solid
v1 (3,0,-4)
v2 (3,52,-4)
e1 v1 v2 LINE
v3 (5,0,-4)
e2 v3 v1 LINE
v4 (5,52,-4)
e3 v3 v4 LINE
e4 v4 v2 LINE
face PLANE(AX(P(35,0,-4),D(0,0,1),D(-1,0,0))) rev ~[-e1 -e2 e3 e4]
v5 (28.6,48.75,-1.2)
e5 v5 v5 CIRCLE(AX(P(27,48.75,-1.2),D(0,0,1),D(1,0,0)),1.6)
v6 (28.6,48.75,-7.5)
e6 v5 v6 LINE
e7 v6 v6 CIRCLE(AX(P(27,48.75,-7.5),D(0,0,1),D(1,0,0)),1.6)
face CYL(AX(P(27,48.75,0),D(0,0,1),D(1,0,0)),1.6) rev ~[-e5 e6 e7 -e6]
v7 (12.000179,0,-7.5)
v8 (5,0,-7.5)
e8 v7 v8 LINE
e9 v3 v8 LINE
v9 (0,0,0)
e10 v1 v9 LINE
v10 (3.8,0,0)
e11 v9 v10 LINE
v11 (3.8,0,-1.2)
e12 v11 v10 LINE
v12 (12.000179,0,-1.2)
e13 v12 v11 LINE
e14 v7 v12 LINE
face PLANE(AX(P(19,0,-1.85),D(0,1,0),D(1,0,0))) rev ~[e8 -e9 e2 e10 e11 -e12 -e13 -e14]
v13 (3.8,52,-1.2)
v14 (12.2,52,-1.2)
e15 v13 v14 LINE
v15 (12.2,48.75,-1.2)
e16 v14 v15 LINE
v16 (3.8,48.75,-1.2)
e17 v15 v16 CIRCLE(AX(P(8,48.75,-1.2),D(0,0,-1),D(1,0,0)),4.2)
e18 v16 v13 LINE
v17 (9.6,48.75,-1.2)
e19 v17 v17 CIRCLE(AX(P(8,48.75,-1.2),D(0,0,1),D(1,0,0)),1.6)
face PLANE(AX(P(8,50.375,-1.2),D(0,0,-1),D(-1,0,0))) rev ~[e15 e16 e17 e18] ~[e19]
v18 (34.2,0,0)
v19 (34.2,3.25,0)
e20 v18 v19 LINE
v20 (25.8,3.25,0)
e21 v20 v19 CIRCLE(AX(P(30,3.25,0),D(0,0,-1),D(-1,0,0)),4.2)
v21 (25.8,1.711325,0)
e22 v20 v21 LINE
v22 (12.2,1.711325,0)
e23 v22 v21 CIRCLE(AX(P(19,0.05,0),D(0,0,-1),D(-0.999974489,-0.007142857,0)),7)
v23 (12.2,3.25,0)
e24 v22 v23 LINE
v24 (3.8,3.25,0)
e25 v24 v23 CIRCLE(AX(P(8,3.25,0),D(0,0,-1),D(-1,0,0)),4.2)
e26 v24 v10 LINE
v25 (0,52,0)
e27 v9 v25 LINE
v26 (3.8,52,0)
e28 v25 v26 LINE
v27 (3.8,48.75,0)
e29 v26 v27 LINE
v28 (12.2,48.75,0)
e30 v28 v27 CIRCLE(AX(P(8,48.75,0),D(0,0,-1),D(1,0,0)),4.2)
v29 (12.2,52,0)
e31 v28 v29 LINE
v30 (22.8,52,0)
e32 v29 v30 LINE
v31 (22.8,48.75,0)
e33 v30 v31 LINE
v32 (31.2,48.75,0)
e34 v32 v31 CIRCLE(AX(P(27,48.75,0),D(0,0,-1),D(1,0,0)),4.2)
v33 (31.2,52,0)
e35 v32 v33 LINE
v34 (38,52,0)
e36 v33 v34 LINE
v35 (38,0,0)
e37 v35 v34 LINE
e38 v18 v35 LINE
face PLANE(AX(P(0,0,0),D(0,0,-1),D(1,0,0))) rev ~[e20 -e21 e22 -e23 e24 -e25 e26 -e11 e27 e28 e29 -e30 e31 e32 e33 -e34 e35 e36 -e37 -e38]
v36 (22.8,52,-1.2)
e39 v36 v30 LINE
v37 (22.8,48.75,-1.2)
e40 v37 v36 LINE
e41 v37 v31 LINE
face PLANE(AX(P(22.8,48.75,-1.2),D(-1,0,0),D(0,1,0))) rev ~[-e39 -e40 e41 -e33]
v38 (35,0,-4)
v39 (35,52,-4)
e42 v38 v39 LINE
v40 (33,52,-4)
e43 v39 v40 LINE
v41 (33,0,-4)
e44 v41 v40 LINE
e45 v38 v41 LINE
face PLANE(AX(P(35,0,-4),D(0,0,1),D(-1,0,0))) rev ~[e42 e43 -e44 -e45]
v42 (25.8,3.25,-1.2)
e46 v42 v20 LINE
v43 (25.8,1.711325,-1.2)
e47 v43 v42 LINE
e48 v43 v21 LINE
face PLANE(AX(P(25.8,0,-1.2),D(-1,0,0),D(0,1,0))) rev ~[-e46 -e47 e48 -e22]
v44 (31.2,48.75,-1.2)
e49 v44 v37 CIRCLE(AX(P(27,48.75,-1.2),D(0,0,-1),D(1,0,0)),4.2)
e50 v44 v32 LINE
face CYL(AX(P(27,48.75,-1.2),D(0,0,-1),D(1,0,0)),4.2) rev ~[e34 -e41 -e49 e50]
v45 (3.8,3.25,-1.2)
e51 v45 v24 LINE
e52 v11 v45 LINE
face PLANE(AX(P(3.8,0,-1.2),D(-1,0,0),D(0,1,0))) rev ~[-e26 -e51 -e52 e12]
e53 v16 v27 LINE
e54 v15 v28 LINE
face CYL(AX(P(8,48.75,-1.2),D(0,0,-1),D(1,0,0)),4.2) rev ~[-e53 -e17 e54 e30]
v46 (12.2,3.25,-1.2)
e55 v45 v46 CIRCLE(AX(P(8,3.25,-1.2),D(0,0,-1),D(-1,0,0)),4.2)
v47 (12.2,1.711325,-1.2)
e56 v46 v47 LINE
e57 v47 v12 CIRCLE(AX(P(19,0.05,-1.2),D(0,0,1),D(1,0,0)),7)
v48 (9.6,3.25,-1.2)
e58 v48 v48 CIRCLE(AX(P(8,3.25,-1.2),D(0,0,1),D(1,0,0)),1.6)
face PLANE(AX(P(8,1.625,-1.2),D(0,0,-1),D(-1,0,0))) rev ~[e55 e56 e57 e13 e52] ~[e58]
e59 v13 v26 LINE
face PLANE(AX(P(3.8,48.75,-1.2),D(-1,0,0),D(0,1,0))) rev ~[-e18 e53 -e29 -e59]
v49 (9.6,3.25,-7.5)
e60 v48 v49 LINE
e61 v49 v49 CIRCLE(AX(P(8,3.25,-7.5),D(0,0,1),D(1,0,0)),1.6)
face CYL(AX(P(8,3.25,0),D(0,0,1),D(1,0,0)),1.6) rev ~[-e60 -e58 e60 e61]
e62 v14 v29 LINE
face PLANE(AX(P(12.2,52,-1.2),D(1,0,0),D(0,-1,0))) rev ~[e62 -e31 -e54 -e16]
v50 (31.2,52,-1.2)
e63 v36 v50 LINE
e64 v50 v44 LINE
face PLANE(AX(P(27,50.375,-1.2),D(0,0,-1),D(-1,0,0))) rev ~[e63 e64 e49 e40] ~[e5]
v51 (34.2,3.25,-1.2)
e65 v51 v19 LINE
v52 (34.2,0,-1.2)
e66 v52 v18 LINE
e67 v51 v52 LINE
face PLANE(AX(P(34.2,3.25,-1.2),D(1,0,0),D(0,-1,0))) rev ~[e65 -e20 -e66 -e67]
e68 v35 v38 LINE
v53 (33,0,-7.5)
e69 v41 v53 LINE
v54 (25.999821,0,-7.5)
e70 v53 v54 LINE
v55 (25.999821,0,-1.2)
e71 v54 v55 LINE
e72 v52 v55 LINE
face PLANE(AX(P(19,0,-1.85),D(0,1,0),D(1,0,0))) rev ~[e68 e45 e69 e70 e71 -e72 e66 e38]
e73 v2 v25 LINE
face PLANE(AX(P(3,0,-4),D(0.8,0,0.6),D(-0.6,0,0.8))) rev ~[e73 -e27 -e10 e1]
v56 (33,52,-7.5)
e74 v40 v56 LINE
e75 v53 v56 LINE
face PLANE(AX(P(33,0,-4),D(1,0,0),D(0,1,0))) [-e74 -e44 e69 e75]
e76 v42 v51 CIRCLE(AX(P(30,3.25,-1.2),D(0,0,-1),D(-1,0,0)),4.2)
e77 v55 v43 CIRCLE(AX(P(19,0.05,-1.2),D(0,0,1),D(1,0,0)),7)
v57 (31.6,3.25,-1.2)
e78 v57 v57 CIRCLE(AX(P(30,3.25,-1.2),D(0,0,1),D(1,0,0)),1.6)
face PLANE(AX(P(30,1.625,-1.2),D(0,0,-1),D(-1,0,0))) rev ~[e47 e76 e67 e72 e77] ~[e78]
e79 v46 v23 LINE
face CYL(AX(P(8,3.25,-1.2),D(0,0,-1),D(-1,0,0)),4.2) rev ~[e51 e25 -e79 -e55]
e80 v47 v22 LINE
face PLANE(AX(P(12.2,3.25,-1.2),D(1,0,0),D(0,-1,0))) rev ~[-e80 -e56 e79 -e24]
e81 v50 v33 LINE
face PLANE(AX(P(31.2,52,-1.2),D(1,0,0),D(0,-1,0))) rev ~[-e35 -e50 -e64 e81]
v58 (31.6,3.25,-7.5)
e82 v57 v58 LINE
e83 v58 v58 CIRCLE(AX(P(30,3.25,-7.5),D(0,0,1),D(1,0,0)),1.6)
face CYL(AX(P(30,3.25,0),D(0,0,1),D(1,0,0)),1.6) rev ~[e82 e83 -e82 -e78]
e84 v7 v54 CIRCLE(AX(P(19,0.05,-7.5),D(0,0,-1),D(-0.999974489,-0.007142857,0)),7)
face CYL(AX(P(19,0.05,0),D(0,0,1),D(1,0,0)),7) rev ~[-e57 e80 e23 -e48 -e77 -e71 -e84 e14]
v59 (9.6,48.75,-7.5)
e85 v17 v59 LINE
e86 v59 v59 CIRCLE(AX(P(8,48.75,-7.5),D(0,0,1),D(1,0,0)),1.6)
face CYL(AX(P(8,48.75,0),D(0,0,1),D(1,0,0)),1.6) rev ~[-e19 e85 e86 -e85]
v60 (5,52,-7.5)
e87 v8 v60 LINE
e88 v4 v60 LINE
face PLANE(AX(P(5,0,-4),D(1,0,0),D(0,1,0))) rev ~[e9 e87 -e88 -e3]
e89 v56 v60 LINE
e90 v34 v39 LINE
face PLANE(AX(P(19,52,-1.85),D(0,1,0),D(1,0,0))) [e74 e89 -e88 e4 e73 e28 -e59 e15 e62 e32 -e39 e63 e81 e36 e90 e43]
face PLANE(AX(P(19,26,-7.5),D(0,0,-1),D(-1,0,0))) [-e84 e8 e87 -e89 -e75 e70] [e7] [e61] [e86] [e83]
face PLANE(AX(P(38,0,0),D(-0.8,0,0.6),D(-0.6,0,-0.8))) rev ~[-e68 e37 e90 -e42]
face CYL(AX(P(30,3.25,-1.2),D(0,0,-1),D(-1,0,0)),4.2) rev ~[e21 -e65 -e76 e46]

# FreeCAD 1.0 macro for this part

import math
import FreeCAD as App
import Part
import Sketcher

doc = App.newDocument("Part")
body = doc.addObject("PartDesign::Body", "Body")

sketch1 = body.newObject("Sketcher::SketchObject", "Sketch")
sketch1.AttachmentSupport = (doc.getObject("XZ_Plane"), [""])
sketch1.MapMode = "FlatFace"
sketch1.addGeometry(Part.LineSegment(App.Vector(0, 0, 0), App.Vector(38, 0, 0)), False)
sketch1.addGeometry(Part.LineSegment(App.Vector(38, 0, 0), App.Vector(35, -4, 0)), False)
sketch1.addGeometry(Part.LineSegment(App.Vector(35, -4, 0), App.Vector(3, -4, 0)), False)
sketch1.addGeometry(Part.LineSegment(App.Vector(3, -4, 0), App.Vector(0, 0, 0)), False)
sketch1.addConstraint(Sketcher.Constraint("Coincident", 0, 2, 1, 1))
sketch1.addConstraint(Sketcher.Constraint("Coincident", 1, 2, 2, 1))
sketch1.addConstraint(Sketcher.Constraint("Coincident", 2, 2, 3, 1))
sketch1.addConstraint(Sketcher.Constraint("Coincident", 3, 2, 0, 1))
sketch1.addConstraint(Sketcher.Constraint("Horizontal", 0))
sketch1.addConstraint(Sketcher.Constraint("Horizontal", 2))
sketch1.addConstraint(Sketcher.Constraint("Coincident", 3, 2, -1, 1))
sketch1.addConstraint(Sketcher.Constraint("Equal", 1, 3))
sketch1.addConstraint(Sketcher.Constraint("DistanceX", 0, 1, 0, 2, 38.0))
sketch1.addConstraint(Sketcher.Constraint("DistanceX", 2, 2, 2, 1, 32.0))
sketch1.addConstraint(Sketcher.Constraint("Distance", 1, 5.0))
pad1 = body.newObject("PartDesign::Pad", "Pad")
pad1.Profile = sketch1
pad1.Length = 52
pad1.Reversed = True

sketch2 = body.newObject("Sketcher::SketchObject", "Sketch001")
sketch2.AttachmentSupport = (doc.getObject("XY_Plane"), [""])
sketch2.MapMode = "FlatFace"
sketch2.AttachmentOffset = App.Placement(App.Vector(0, 0, -4), App.Rotation())
sketch2.addGeometry(Part.LineSegment(App.Vector(33, 52, 0), App.Vector(33, 0, 0)), False)
sketch2.addGeometry(Part.LineSegment(App.Vector(33, 0, 0), App.Vector(5, 0, 0)), False)
sketch2.addGeometry(Part.LineSegment(App.Vector(5, 0, 0), App.Vector(5, 52, 0)), False)
sketch2.addGeometry(Part.LineSegment(App.Vector(5, 52, 0), App.Vector(33, 52, 0)), False)
sketch2.addConstraint(Sketcher.Constraint("Coincident", 0, 2, 1, 1))
sketch2.addConstraint(Sketcher.Constraint("Coincident", 1, 2, 2, 1))
sketch2.addConstraint(Sketcher.Constraint("Coincident", 2, 2, 3, 1))
sketch2.addConstraint(Sketcher.Constraint("Coincident", 3, 2, 0, 1))
sketch2.addConstraint(Sketcher.Constraint("Vertical", 0))
sketch2.addConstraint(Sketcher.Constraint("Horizontal", 1))
sketch2.addConstraint(Sketcher.Constraint("Vertical", 2))
sketch2.addConstraint(Sketcher.Constraint("Horizontal", 3))
sketch2.addConstraint(Sketcher.Constraint("PointOnObject", 0, 2, -1))
sketch2.addConstraint(Sketcher.Constraint("DistanceX", 1, 2, 1, 1, 28.0))
sketch2.addConstraint(Sketcher.Constraint("DistanceY", 0, 2, 0, 1, 52.0))
sketch2.addConstraint(Sketcher.Constraint("DistanceX", -1, 1, 0, 2, 33.0))
pad2 = body.newObject("PartDesign::Pad", "Pad001")
pad2.Profile = sketch2
pad2.Length = 3.5
pad2.Reversed = True

sketch3 = body.newObject("Sketcher::SketchObject", "Sketch002")
sketch3.AttachmentSupport = (doc.getObject("XY_Plane"), [""])
sketch3.MapMode = "FlatFace"
sketch3.addGeometry(Part.Circle(App.Vector(8, 3.2, 0), App.Vector(0, 0, 1), 1.6), False)
sketch3.addConstraint(Sketcher.Constraint("Diameter", 0, 3.2))
sketch3.addConstraint(Sketcher.Constraint("DistanceX", -1, 1, 0, 3, 8.0))
sketch3.addConstraint(Sketcher.Constraint("DistanceY", -1, 1, 0, 3, 3.25))
pocket1 = body.newObject("PartDesign::Pocket", "Pocket")
pocket1.Profile = sketch3
pocket1.Type = "UpToFirst"

sketch4 = body.newObject("Sketcher::SketchObject", "Sketch003")
sketch4.AttachmentSupport = (doc.getObject("XY_Plane"), [""])
sketch4.MapMode = "FlatFace"
sketch4.addGeometry(Part.Circle(App.Vector(30, 3.2, 0), App.Vector(0, 0, 1), 1.6), False)
sketch4.addConstraint(Sketcher.Constraint("Diameter", 0, 3.2))
sketch4.addConstraint(Sketcher.Constraint("DistanceX", -1, 1, 0, 3, 30.0))
sketch4.addConstraint(Sketcher.Constraint("DistanceY", -1, 1, 0, 3, 3.25))
pocket2 = body.newObject("PartDesign::Pocket", "Pocket001")
pocket2.Profile = sketch4
pocket2.Type = "UpToFirst"

sketch5 = body.newObject("Sketcher::SketchObject", "Sketch004")
sketch5.AttachmentSupport = (doc.getObject("XY_Plane"), [""])
sketch5.MapMode = "FlatFace"
sketch5.addGeometry(Part.Circle(App.Vector(8, 48.8, 0), App.Vector(0, 0, 1), 1.6), False)
sketch5.addConstraint(Sketcher.Constraint("Diameter", 0, 3.2))
sketch5.addConstraint(Sketcher.Constraint("DistanceX", -1, 1, 0, 3, 8.0))
sketch5.addConstraint(Sketcher.Constraint("DistanceY", -1, 1, 0, 3, 48.75))
pocket3 = body.newObject("PartDesign::Pocket", "Pocket002")
pocket3.Profile = sketch5
pocket3.Type = "UpToFirst"

sketch6 = body.newObject("Sketcher::SketchObject", "Sketch005")
sketch6.AttachmentSupport = (doc.getObject("XY_Plane"), [""])
sketch6.MapMode = "FlatFace"
sketch6.addGeometry(Part.Circle(App.Vector(27, 48.8, 0), App.Vector(0, 0, 1), 1.6), False)
sketch6.addConstraint(Sketcher.Constraint("Diameter", 0, 3.2))
sketch6.addConstraint(Sketcher.Constraint("DistanceX", -1, 1, 0, 3, 27.0))
sketch6.addConstraint(Sketcher.Constraint("DistanceY", -1, 1, 0, 3, 48.75))
pocket4 = body.newObject("PartDesign::Pocket", "Pocket003")
pocket4.Profile = sketch6
pocket4.Type = "UpToFirst"

sketch7 = body.newObject("Sketcher::SketchObject", "Sketch006")
sketch7.AttachmentSupport = (doc.getObject("XY_Plane"), [""])
sketch7.MapMode = "FlatFace"
sketch7.addGeometry(Part.Circle(App.Vector(19, 0, 0), App.Vector(0, 0, 1), 7), False)
sketch7.addConstraint(Sketcher.Constraint("Diameter", 0, 14.0))
sketch7.addConstraint(Sketcher.Constraint("DistanceX", -1, 1, 0, 3, 19.0))
sketch7.addConstraint(Sketcher.Constraint("DistanceY", -1, 1, 0, 3, 0.05))
pocket5 = body.newObject("PartDesign::Pocket", "Pocket004")
pocket5.Profile = sketch7
pocket5.Type = "ThroughAll"

sketch8 = body.newObject("Sketcher::SketchObject", "Sketch007")
sketch8.AttachmentSupport = (doc.getObject("XY_Plane"), [""])
sketch8.MapMode = "FlatFace"
sketch8.addGeometry(Part.Circle(App.Vector(8, 48.8, 0), App.Vector(0, 0, 1), 4), False)
sketch8.addGeometry(Part.Circle(App.Vector(27, 48.8, 0), App.Vector(0, 0, 1), 4), False)
sketch8.addGeometry(Part.Circle(App.Vector(8, 3.2, 0), App.Vector(0, 0, 1), 4), False)
sketch8.addGeometry(Part.Circle(App.Vector(30, 3.2, 0), App.Vector(0, 0, 1), 4), False)
sketch8.addConstraint(Sketcher.Constraint("Equal", 0, 1))
sketch8.addConstraint(Sketcher.Constraint("Equal", 1, 2))
sketch8.addConstraint(Sketcher.Constraint("Equal", 2, 3))
sketch8.addConstraint(Sketcher.Constraint("Horizontal", 0, 3, 1, 3))
sketch8.addConstraint(Sketcher.Constraint("Horizontal", 2, 3, 3, 3))
sketch8.addConstraint(Sketcher.Constraint("Vertical", 0, 3, 2, 3))
sketch8.addConstraint(Sketcher.Constraint("Diameter", 0, 8.0))
sketch8.addConstraint(Sketcher.Constraint("DistanceX", -1, 1, 0, 3, 8.0))
sketch8.addConstraint(Sketcher.Constraint("DistanceX", -1, 1, 1, 3, 27.0))
sketch8.addConstraint(Sketcher.Constraint("DistanceX", -1, 1, 3, 3, 30.0))
sketch8.addConstraint(Sketcher.Constraint("DistanceY", 2, 3, 0, 3, 45.5))
sketch8.addConstraint(Sketcher.Constraint("DistanceY", -1, 1, 0, 3, 48.75))
pocket6 = body.newObject("PartDesign::Pocket", "Pocket005")
pocket6.Profile = sketch8
pocket6.Length = 1.2

sketch9 = body.newObject("Sketcher::SketchObject", "Sketch008")
sketch9.AttachmentSupport = (doc.getObject("XY_Plane"), [""])
sketch9.MapMode = "FlatFace"
sketch9.AttachmentOffset = App.Placement(App.Vector(0, 0, -1.2), App.Rotation())
sketch9.addGeometry(Part.LineSegment(App.Vector(3.8, 52, 0), App.Vector(3.8, 48.8, 0)), False)
sketch9.addGeometry(Part.ArcOfCircle(Part.Circle(App.Vector(8, 48.8, 0), App.Vector(0, 0, 1), 4.2), math.radians(180), math.radians(360)), False)
sketch9.addGeometry(Part.LineSegment(App.Vector(12.2, 48.8, 0), App.Vector(12.2, 52, 0)), False)
sketch9.addGeometry(Part.ArcOfCircle(Part.Circle(App.Vector(8, 52, 0), App.Vector(0, 0, 1), 4.2), math.radians(0), math.radians(180)), False)
sketch9.addConstraint(Sketcher.Constraint("Tangent", 0, 2, 1, 1))
sketch9.addConstraint(Sketcher.Constraint("Tangent", 1, 2, 2, 1))
sketch9.addConstraint(Sketcher.Constraint("Tangent", 2, 2, 3, 1))
sketch9.addConstraint(Sketcher.Constraint("Tangent", 3, 2, 0, 1))
sketch9.addConstraint(Sketcher.Constraint("Vertical", 0))
sketch9.addConstraint(Sketcher.Constraint("Vertical", 2))
sketch9.addConstraint(Sketcher.Constraint("Radius", 1, 4.2))
sketch9.addConstraint(Sketcher.Constraint("DistanceX", -1, 1, 1, 3, 8.0))
sketch9.addConstraint(Sketcher.Constraint("DistanceY", -1, 1, 3, 3, 52.0))
sketch9.addConstraint(Sketcher.Constraint("DistanceY", 0, 2, 0, 1, 3.25))
pocket7 = body.newObject("PartDesign::Pocket", "Pocket006")
pocket7.Profile = sketch9
pocket7.Length = 1.2
pocket7.Reversed = True

sketch10 = body.newObject("Sketcher::SketchObject", "Sketch009")
sketch10.AttachmentSupport = (doc.getObject("XY_Plane"), [""])
sketch10.MapMode = "FlatFace"
sketch10.AttachmentOffset = App.Placement(App.Vector(0, 0, -1.2), App.Rotation())
sketch10.addGeometry(Part.LineSegment(App.Vector(22.8, 52, 0), App.Vector(22.8, 48.8, 0)), False)
sketch10.addGeometry(Part.ArcOfCircle(Part.Circle(App.Vector(27, 48.8, 0), App.Vector(0, 0, 1), 4.2), math.radians(180), math.radians(360)), False)
sketch10.addGeometry(Part.LineSegment(App.Vector(31.2, 48.8, 0), App.Vector(31.2, 52, 0)), False)
sketch10.addGeometry(Part.ArcOfCircle(Part.Circle(App.Vector(27, 52, 0), App.Vector(0, 0, 1), 4.2), math.radians(0), math.radians(180)), False)
sketch10.addConstraint(Sketcher.Constraint("Tangent", 0, 2, 1, 1))
sketch10.addConstraint(Sketcher.Constraint("Tangent", 1, 2, 2, 1))
sketch10.addConstraint(Sketcher.Constraint("Tangent", 2, 2, 3, 1))
sketch10.addConstraint(Sketcher.Constraint("Tangent", 3, 2, 0, 1))
sketch10.addConstraint(Sketcher.Constraint("Vertical", 0))
sketch10.addConstraint(Sketcher.Constraint("Vertical", 2))
sketch10.addConstraint(Sketcher.Constraint("Radius", 1, 4.2))
sketch10.addConstraint(Sketcher.Constraint("DistanceX", -1, 1, 1, 3, 27.0))
sketch10.addConstraint(Sketcher.Constraint("DistanceY", -1, 1, 3, 3, 52.0))
sketch10.addConstraint(Sketcher.Constraint("DistanceY", 0, 2, 0, 1, 3.25))
pocket8 = body.newObject("PartDesign::Pocket", "Pocket007")
pocket8.Profile = sketch10
pocket8.Length = 1.2
pocket8.Reversed = True

sketch11 = body.newObject("Sketcher::SketchObject", "Sketch010")
sketch11.AttachmentSupport = (doc.getObject("XY_Plane"), [""])
sketch11.MapMode = "FlatFace"
sketch11.AttachmentOffset = App.Placement(App.Vector(0, 0, -1.2), App.Rotation())
sketch11.addGeometry(Part.LineSegment(App.Vector(12.2, 0, 0), App.Vector(12.2, 3.2, 0)), False)
sketch11.addGeometry(Part.ArcOfCircle(Part.Circle(App.Vector(8, 3.2, 0), App.Vector(0, 0, 1), 4.2), math.radians(0), math.radians(180)), False)
sketch11.addGeometry(Part.LineSegment(App.Vector(3.8, 3.2, 0), App.Vector(3.8, 0, 0)), False)
sketch11.addGeometry(Part.ArcOfCircle(Part.Circle(App.Vector(8, 0, 0), App.Vector(0, 0, 1), 4.2), math.radians(180), math.radians(360)), False)
sketch11.addConstraint(Sketcher.Constraint("Tangent", 0, 2, 1, 1))
sketch11.addConstraint(Sketcher.Constraint("Tangent", 1, 2, 2, 1))
sketch11.addConstraint(Sketcher.Constraint("Tangent", 2, 2, 3, 1))
sketch11.addConstraint(Sketcher.Constraint("Tangent", 3, 2, 0, 1))
sketch11.addConstraint(Sketcher.Constraint("Vertical", 0))
sketch11.addConstraint(Sketcher.Constraint("Vertical", 2))
sketch11.addConstraint(Sketcher.Constraint("PointOnObject", 3, 3, -1))
sketch11.addConstraint(Sketcher.Constraint("Radius", 1, 4.2))
sketch11.addConstraint(Sketcher.Constraint("DistanceX", -1, 1, 1, 3, 8.0))
sketch11.addConstraint(Sketcher.Constraint("DistanceY", 0, 1, 0, 2, 3.25))
pocket9 = body.newObject("PartDesign::Pocket", "Pocket008")
pocket9.Profile = sketch11
pocket9.Length = 1.2
pocket9.Reversed = True

sketch12 = body.newObject("Sketcher::SketchObject", "Sketch011")
sketch12.AttachmentSupport = (doc.getObject("XY_Plane"), [""])
sketch12.MapMode = "FlatFace"
sketch12.AttachmentOffset = App.Placement(App.Vector(0, 0, -1.2), App.Rotation())
sketch12.addGeometry(Part.LineSegment(App.Vector(34.2, 0, 0), App.Vector(34.2, 3.2, 0)), False)
sketch12.addGeometry(Part.ArcOfCircle(Part.Circle(App.Vector(30, 3.2, 0), App.Vector(0, 0, 1), 4.2), math.radians(0), math.radians(180)), False)
sketch12.addGeometry(Part.LineSegment(App.Vector(25.8, 3.2, 0), App.Vector(25.8, 0, 0)), False)
sketch12.addGeometry(Part.ArcOfCircle(Part.Circle(App.Vector(30, 0, 0), App.Vector(0, 0, 1), 4.2), math.radians(180), math.radians(360)), False)
sketch12.addConstraint(Sketcher.Constraint("Tangent", 0, 2, 1, 1))
sketch12.addConstraint(Sketcher.Constraint("Tangent", 1, 2, 2, 1))
sketch12.addConstraint(Sketcher.Constraint("Tangent", 2, 2, 3, 1))
sketch12.addConstraint(Sketcher.Constraint("Tangent", 3, 2, 0, 1))
sketch12.addConstraint(Sketcher.Constraint("Vertical", 0))
sketch12.addConstraint(Sketcher.Constraint("Vertical", 2))
sketch12.addConstraint(Sketcher.Constraint("PointOnObject", 3, 3, -1))
sketch12.addConstraint(Sketcher.Constraint("Radius", 1, 4.2))
sketch12.addConstraint(Sketcher.Constraint("DistanceX", -1, 1, 1, 3, 30.0))
sketch12.addConstraint(Sketcher.Constraint("DistanceY", 0, 1, 0, 2, 3.25))
pocket10 = body.newObject("PartDesign::Pocket", "Pocket009")
pocket10.Profile = sketch12
pocket10.Length = 1.2
pocket10.Reversed = True

doc.recompute()
